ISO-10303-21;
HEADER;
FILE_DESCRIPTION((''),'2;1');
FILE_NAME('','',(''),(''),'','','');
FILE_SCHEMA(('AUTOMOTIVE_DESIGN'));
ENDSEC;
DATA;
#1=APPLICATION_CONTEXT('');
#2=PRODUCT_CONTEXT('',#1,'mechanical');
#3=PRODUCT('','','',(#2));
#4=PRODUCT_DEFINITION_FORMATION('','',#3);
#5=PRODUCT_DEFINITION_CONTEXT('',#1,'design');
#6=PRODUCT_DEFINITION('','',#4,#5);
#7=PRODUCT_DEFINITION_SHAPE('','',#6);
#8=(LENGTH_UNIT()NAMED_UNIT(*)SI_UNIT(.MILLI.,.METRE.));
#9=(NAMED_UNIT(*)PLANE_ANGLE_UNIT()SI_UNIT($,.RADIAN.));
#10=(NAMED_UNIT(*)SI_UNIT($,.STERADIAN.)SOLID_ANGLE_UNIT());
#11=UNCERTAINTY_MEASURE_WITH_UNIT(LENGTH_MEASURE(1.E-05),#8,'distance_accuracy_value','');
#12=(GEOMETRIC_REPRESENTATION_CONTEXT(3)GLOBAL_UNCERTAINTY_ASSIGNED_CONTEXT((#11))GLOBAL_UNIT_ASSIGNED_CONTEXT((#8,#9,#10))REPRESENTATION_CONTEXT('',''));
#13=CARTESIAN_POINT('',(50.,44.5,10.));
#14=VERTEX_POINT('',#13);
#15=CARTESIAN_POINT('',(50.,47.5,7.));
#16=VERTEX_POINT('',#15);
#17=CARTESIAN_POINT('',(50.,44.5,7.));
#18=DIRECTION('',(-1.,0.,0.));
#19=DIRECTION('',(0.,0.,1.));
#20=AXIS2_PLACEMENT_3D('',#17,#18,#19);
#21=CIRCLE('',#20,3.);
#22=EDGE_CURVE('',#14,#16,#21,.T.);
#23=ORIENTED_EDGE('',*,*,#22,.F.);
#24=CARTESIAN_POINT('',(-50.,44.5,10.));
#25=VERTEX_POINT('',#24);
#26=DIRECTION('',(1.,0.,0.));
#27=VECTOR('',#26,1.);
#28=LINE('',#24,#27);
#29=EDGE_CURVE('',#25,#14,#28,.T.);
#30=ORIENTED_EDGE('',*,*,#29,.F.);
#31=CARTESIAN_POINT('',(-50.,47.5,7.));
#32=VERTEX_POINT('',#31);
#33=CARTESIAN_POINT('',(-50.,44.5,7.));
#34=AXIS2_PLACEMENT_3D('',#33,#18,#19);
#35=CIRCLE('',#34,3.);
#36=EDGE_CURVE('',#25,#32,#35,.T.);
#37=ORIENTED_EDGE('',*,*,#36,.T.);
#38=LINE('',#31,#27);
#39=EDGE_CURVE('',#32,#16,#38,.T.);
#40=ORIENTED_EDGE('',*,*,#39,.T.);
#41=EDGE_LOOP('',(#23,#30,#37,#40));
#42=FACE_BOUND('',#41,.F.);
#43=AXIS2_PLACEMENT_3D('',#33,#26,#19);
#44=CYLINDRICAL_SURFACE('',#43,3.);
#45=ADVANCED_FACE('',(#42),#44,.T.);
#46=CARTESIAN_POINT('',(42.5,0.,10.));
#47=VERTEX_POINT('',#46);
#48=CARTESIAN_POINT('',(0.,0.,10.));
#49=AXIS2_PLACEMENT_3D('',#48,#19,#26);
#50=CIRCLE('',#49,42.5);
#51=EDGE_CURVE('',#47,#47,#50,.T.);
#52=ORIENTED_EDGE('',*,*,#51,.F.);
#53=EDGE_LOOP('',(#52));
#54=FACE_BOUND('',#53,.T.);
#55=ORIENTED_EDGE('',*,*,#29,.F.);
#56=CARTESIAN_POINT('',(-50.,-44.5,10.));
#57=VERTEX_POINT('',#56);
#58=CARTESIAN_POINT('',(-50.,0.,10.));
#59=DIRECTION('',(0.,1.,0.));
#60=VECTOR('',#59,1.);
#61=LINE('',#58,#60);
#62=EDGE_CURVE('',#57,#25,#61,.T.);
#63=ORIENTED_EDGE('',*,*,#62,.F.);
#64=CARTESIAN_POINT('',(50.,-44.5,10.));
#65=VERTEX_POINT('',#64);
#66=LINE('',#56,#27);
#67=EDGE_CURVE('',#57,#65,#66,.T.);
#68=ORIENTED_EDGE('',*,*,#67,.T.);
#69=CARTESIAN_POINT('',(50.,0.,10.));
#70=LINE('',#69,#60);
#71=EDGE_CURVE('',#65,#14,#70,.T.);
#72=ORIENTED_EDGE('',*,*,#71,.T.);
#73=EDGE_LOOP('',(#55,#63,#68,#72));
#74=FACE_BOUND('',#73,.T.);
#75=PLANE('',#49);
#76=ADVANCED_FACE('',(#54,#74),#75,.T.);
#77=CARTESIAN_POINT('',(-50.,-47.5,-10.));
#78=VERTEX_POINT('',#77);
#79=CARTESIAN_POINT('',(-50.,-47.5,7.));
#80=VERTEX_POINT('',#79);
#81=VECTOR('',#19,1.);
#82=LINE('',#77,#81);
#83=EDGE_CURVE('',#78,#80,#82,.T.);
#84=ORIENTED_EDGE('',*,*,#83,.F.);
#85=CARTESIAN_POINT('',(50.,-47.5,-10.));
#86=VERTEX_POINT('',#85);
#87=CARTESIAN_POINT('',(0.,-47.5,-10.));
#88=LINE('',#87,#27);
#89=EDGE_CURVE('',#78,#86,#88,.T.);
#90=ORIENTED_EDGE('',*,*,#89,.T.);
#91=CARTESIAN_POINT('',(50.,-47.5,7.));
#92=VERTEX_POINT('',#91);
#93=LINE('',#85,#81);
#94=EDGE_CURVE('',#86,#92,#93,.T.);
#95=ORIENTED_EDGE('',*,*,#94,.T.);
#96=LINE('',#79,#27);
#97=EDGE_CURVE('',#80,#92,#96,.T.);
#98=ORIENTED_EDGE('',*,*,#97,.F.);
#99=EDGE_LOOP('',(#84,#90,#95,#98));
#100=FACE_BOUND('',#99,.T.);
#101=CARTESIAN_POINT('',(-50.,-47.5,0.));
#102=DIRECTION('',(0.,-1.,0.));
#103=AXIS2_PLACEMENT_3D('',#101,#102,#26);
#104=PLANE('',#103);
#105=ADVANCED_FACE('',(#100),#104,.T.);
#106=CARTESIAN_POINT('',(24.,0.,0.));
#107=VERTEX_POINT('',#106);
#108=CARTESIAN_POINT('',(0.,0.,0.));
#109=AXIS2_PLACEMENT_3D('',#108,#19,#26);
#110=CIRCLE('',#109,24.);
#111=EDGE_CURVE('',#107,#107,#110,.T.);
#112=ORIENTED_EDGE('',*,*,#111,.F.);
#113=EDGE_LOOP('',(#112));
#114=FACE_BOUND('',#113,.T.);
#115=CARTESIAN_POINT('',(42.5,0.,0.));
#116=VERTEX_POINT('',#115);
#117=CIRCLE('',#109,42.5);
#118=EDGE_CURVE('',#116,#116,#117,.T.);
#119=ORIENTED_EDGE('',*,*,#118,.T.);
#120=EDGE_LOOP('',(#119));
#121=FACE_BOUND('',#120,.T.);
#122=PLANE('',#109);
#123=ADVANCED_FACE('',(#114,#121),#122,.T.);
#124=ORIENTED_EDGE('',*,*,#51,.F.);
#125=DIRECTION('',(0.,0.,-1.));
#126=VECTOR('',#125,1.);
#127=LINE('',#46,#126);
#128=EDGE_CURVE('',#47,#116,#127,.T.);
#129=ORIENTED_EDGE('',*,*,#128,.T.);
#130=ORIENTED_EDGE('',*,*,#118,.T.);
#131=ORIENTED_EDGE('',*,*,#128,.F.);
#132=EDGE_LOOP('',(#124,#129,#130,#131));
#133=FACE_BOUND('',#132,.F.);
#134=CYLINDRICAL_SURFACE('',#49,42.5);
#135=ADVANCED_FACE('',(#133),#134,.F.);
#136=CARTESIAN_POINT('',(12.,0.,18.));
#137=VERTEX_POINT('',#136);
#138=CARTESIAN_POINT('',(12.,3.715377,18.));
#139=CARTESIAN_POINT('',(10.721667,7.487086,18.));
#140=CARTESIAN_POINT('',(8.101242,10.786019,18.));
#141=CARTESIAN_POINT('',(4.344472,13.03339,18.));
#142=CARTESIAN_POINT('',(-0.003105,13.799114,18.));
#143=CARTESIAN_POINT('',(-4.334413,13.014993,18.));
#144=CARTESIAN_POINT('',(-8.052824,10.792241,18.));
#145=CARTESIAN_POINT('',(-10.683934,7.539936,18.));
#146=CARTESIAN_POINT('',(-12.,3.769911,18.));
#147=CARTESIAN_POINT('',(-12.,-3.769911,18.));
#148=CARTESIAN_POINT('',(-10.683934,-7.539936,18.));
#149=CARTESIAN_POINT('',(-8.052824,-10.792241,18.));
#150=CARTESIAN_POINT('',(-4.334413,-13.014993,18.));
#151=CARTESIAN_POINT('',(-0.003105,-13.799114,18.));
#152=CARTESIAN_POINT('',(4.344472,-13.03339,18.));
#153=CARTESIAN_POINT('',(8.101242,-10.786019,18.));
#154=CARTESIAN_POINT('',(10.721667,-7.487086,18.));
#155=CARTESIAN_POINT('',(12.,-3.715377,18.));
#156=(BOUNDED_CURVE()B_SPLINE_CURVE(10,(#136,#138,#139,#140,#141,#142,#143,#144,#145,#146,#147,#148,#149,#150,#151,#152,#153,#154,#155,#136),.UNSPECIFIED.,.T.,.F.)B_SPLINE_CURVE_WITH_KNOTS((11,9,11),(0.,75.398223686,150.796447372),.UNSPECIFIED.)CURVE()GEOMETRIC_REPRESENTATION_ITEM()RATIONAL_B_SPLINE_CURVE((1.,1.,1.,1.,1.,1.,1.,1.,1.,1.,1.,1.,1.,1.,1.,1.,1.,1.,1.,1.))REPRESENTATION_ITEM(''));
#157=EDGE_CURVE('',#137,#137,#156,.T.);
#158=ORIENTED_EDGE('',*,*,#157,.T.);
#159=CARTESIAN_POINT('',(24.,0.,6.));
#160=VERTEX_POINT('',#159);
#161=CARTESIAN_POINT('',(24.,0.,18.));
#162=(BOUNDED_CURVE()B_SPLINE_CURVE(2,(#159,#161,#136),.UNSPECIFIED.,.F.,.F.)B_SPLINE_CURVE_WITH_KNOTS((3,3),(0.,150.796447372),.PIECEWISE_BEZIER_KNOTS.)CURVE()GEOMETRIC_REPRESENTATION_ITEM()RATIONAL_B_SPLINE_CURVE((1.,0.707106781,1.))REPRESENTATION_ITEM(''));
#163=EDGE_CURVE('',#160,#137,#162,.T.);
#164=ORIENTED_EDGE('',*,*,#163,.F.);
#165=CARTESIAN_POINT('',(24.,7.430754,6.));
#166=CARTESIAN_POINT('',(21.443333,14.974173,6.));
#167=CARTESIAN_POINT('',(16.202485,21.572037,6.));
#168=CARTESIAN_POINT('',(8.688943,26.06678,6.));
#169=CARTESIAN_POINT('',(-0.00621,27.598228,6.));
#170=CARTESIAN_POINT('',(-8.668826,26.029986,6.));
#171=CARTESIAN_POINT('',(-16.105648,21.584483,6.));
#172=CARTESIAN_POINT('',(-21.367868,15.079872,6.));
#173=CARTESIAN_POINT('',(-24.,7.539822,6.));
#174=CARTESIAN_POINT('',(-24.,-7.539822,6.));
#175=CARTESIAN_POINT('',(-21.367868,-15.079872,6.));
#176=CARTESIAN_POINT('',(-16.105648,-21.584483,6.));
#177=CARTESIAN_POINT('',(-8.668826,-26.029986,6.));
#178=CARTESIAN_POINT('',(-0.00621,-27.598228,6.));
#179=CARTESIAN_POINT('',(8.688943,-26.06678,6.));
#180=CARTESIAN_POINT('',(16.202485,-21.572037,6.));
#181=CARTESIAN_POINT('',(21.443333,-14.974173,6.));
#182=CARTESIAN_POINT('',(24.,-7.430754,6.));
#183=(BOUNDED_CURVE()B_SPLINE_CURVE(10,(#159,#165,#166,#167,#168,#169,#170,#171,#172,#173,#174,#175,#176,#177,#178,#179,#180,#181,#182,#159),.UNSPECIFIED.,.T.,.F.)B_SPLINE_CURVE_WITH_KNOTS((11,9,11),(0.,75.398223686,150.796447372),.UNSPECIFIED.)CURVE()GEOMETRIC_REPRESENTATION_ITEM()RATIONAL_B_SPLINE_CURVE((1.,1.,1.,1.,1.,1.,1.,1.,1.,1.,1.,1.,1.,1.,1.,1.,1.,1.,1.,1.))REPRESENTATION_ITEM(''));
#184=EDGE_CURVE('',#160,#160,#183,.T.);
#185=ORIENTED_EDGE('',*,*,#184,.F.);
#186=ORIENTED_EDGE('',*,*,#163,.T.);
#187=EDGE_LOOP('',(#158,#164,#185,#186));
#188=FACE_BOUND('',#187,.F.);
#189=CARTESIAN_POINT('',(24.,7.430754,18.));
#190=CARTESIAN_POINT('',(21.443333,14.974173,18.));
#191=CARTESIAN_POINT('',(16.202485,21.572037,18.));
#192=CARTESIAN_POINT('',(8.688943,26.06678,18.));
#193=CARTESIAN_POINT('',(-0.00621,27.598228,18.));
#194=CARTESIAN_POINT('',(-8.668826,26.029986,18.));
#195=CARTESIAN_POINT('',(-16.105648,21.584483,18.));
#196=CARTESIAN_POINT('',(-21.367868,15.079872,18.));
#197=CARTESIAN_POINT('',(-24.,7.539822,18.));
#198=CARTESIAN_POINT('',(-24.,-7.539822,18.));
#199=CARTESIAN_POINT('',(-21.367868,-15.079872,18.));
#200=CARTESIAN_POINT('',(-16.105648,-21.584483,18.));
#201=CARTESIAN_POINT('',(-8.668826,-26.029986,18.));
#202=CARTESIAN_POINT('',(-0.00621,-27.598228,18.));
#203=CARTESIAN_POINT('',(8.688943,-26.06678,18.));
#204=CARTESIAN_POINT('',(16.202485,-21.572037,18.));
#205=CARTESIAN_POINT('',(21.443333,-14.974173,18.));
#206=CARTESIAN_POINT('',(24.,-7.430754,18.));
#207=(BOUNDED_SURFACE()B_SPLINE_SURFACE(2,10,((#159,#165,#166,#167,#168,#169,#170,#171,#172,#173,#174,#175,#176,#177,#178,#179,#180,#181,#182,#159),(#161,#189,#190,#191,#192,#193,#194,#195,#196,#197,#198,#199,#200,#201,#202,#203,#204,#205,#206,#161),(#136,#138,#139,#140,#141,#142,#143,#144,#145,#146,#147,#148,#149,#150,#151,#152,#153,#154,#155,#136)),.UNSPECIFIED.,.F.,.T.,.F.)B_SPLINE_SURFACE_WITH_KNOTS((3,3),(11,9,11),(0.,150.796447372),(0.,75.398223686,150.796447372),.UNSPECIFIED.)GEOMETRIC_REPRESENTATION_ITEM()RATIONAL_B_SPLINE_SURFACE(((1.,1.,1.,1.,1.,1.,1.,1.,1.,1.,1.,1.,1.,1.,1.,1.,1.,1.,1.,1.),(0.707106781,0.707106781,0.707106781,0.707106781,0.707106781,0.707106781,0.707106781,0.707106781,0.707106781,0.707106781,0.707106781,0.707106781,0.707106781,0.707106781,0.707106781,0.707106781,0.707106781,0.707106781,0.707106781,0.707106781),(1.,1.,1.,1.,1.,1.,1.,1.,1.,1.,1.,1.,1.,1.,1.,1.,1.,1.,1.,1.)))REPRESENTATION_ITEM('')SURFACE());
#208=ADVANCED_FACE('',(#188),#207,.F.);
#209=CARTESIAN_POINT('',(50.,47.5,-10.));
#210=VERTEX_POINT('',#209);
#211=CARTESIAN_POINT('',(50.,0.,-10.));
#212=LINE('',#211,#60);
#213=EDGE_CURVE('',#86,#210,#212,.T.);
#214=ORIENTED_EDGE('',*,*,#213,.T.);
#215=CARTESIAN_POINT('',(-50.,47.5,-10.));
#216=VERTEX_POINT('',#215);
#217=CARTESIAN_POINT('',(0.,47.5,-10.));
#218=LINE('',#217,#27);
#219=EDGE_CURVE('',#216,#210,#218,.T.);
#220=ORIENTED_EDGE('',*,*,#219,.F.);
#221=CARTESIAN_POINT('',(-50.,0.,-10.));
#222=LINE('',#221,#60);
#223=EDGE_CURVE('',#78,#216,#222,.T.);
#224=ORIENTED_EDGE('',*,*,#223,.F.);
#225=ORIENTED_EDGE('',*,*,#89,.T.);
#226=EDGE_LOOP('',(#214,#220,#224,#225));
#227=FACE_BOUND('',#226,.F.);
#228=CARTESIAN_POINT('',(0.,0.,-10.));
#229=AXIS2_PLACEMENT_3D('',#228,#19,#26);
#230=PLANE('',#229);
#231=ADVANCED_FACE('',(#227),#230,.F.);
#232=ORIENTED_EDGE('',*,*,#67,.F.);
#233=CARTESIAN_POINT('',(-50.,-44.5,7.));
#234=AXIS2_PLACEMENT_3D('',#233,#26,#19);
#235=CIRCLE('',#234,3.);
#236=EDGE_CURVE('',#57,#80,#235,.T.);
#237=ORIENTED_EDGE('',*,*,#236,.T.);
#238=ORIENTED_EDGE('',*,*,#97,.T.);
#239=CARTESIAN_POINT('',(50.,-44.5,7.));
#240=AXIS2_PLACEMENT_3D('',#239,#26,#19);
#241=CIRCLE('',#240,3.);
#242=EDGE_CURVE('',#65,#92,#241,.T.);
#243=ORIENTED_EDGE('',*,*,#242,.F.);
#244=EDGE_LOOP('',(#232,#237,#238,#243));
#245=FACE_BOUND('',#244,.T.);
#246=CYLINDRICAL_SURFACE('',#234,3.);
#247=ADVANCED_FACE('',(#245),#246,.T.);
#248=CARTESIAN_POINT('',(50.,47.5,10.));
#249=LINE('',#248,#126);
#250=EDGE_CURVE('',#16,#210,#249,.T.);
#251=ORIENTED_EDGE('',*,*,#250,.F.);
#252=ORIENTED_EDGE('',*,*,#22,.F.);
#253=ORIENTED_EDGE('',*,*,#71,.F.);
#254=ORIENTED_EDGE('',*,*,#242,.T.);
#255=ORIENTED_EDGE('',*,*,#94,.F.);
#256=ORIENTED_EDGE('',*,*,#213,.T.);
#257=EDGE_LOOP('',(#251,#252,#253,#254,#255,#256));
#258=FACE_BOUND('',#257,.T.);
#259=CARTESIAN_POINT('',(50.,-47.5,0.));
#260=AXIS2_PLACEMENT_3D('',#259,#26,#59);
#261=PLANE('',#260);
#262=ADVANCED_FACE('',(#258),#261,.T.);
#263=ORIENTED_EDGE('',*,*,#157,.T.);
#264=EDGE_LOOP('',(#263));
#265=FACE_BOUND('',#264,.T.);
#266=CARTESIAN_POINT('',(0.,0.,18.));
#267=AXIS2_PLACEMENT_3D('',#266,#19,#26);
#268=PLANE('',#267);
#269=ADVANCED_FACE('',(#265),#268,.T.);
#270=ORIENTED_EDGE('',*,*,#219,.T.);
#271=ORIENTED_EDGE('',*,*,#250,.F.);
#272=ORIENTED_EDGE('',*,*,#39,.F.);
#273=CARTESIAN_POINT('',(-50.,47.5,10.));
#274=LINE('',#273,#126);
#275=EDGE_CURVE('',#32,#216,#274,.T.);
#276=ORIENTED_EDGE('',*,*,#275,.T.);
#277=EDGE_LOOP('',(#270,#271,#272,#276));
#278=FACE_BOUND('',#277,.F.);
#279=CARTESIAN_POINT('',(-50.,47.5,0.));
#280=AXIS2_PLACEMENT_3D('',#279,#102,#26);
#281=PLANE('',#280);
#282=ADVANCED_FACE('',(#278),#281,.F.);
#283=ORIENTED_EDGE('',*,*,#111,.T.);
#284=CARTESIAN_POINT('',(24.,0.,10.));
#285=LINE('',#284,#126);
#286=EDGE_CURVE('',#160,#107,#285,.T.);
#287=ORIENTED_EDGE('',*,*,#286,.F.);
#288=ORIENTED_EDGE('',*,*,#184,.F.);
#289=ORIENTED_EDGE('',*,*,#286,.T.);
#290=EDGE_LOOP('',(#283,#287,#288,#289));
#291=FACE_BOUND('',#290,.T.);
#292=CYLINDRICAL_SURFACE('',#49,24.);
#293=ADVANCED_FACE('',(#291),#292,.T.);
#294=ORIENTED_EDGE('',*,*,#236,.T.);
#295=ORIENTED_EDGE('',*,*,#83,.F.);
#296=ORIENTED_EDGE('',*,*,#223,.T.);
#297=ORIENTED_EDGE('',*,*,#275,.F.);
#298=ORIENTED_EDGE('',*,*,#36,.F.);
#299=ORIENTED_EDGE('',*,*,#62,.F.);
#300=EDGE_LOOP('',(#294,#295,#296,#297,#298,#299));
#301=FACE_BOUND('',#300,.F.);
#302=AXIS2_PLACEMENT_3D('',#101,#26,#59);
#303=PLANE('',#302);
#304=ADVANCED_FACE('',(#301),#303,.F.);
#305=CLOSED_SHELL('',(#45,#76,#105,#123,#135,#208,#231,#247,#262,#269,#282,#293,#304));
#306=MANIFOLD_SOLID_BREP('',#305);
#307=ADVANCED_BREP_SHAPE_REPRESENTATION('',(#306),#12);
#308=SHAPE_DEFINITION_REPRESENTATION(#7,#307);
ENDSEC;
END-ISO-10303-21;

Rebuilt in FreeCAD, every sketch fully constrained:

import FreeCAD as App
import Part
import Sketcher
from FreeCAD import Vector
Q = App.Units.Quantity


def edges_at(feature, points):
    """Names of the edges that pass closest to the given points."""
    edges = feature.Shape.Edges
    near = lambda p: min(range(len(edges)), key=lambda i: edges[i].distToShape(Part.Vertex(*p))[0])
    return sorted({f"Edge{near(p) + 1}" for p in points})

doc = App.newDocument("Part")
params = doc.addObject("Spreadsheet::Sheet", "Params")
for row, (alias, value) in enumerate([
    ("sketch1_width", "100 mm"),
    ("sketch1_height", "95 mm"),
    ("pad1_length", "20 mm"),
    ("sketch2_diameter", "85 mm"),
    ("sketch2_diameter2", "48 mm"),
    ("pocket1_length", "10 mm"),
    ("sketch3_diameter", "48 mm"),
    ("pad2_length", "8 mm"),
    ("fillet_radius", "12 mm"),
    ("fillet2_radius", "3 mm"),
], start=1):
    params.set(f"A{row}", alias)
    params.set(f"B{row}", "=" + value)
    params.setAlias(f"B{row}", alias)

body = doc.addObject("PartDesign::Body", "Body")

# Sketch on XY plane
sketch1 = body.newObject("Sketcher::SketchObject", "Sketch")
sketch1.AttachmentSupport = (doc.getObject("XY_Plane"), [""])
sketch1.MapMode = "FlatFace"
sketch1.addGeometry([
    Part.LineSegment(Vector(-50, 48, 0), Vector(-50, -48, 0)),
    Part.LineSegment(Vector(-50, -48, 0), Vector(50, -48, 0)),
    Part.LineSegment(Vector(50, -48, 0), Vector(50, 48, 0)),
    Part.LineSegment(Vector(50, 48, 0), Vector(-50, 48, 0)),
], False)
sketch1.addConstraint([
    Sketcher.Constraint("Coincident", 0, 2, 1, 1),
    Sketcher.Constraint("Coincident", 1, 2, 2, 1),
    Sketcher.Constraint("Coincident", 2, 2, 3, 1),
    Sketcher.Constraint("Coincident", 3, 2, 0, 1),
    Sketcher.Constraint("Vertical", 0),
    Sketcher.Constraint("Horizontal", 1),
    Sketcher.Constraint("Vertical", 2),
    Sketcher.Constraint("Horizontal", 3),
    Sketcher.Constraint("Symmetric", 0, 2, 2, 2, -1, 1),
    Sketcher.Constraint("DistanceX", 1, 1, 1, 2, Q("100 mm")),
    Sketcher.Constraint("DistanceY", 0, 2, 0, 1, Q("95 mm")),
])
sketch1.setExpression("Constraints[9]", "Params.sketch1_width")
sketch1.setExpression("Constraints[10]", "Params.sketch1_height")
pad1 = body.newObject("PartDesign::Pad", "Pad")
pad1.Profile = sketch1
pad1.setExpression("Length", "Params.pad1_length")
pad1.Midplane = True

# Sketch on XY plane
sketch2 = body.newObject("Sketcher::SketchObject", "Sketch001")
sketch2.AttachmentSupport = (doc.getObject("XY_Plane"), [""])
sketch2.MapMode = "FlatFace"
sketch2.AttachmentOffset = App.Placement(Vector(0, 0, 10), App.Rotation())
sketch2.addGeometry([
    Part.Circle(Vector(0, 0, 0), Vector(0, 0, 1), 42),
    Part.Circle(Vector(0, 0, 0), Vector(0, 0, 1), 24),
], False)
sketch2.addConstraint([
    Sketcher.Constraint("Coincident", 0, 3, -1, 1),
    Sketcher.Constraint("Coincident", 1, 3, -1, 1),
    Sketcher.Constraint("Diameter", 0, Q("85 mm")),
    Sketcher.Constraint("Diameter", 1, Q("48 mm")),
])
sketch2.setExpression("Constraints[2]", "Params.sketch2_diameter")
sketch2.setExpression("Constraints[3]", "Params.sketch2_diameter2")
pocket1 = body.newObject("PartDesign::Pocket", "Pocket")
pocket1.Profile = sketch2
pocket1.setExpression("Length", "Params.pocket1_length")

# Sketch on XY plane
sketch3 = body.newObject("Sketcher::SketchObject", "Sketch002")
sketch3.AttachmentSupport = (doc.getObject("XY_Plane"), [""])
sketch3.MapMode = "FlatFace"
sketch3.AttachmentOffset = App.Placement(Vector(0, 0, 10), App.Rotation())
sketch3.addGeometry(Part.Circle(Vector(0, 0, 0), Vector(0, 0, 1), 24), False)
sketch3.addConstraint([
    Sketcher.Constraint("Coincident", 0, 3, -1, 1),
    Sketcher.Constraint("Diameter", 0, Q("48 mm")),
])
sketch3.setExpression("Constraints[1]", "Params.sketch3_diameter")
pad2 = body.newObject("PartDesign::Pad", "Pad001")
pad2.Profile = sketch3
pad2.setExpression("Length", "Params.pad2_length")
doc.recompute()

fillet = body.newObject("PartDesign::Fillet", "Fillet")
fillet.Base = (pad2, edges_at(pad2, [(-24, 0, 18)]))
fillet.setExpression("Radius", "Params.fillet_radius")
doc.recompute()

fillet2 = body.newObject("PartDesign::Fillet", "Fillet001")
fillet2.Base = (fillet, edges_at(fillet, [(0, 47.5, 10), (0, -47.5, 10)]))
fillet2.setExpression("Radius", "Params.fillet2_radius")

doc.recompute()
